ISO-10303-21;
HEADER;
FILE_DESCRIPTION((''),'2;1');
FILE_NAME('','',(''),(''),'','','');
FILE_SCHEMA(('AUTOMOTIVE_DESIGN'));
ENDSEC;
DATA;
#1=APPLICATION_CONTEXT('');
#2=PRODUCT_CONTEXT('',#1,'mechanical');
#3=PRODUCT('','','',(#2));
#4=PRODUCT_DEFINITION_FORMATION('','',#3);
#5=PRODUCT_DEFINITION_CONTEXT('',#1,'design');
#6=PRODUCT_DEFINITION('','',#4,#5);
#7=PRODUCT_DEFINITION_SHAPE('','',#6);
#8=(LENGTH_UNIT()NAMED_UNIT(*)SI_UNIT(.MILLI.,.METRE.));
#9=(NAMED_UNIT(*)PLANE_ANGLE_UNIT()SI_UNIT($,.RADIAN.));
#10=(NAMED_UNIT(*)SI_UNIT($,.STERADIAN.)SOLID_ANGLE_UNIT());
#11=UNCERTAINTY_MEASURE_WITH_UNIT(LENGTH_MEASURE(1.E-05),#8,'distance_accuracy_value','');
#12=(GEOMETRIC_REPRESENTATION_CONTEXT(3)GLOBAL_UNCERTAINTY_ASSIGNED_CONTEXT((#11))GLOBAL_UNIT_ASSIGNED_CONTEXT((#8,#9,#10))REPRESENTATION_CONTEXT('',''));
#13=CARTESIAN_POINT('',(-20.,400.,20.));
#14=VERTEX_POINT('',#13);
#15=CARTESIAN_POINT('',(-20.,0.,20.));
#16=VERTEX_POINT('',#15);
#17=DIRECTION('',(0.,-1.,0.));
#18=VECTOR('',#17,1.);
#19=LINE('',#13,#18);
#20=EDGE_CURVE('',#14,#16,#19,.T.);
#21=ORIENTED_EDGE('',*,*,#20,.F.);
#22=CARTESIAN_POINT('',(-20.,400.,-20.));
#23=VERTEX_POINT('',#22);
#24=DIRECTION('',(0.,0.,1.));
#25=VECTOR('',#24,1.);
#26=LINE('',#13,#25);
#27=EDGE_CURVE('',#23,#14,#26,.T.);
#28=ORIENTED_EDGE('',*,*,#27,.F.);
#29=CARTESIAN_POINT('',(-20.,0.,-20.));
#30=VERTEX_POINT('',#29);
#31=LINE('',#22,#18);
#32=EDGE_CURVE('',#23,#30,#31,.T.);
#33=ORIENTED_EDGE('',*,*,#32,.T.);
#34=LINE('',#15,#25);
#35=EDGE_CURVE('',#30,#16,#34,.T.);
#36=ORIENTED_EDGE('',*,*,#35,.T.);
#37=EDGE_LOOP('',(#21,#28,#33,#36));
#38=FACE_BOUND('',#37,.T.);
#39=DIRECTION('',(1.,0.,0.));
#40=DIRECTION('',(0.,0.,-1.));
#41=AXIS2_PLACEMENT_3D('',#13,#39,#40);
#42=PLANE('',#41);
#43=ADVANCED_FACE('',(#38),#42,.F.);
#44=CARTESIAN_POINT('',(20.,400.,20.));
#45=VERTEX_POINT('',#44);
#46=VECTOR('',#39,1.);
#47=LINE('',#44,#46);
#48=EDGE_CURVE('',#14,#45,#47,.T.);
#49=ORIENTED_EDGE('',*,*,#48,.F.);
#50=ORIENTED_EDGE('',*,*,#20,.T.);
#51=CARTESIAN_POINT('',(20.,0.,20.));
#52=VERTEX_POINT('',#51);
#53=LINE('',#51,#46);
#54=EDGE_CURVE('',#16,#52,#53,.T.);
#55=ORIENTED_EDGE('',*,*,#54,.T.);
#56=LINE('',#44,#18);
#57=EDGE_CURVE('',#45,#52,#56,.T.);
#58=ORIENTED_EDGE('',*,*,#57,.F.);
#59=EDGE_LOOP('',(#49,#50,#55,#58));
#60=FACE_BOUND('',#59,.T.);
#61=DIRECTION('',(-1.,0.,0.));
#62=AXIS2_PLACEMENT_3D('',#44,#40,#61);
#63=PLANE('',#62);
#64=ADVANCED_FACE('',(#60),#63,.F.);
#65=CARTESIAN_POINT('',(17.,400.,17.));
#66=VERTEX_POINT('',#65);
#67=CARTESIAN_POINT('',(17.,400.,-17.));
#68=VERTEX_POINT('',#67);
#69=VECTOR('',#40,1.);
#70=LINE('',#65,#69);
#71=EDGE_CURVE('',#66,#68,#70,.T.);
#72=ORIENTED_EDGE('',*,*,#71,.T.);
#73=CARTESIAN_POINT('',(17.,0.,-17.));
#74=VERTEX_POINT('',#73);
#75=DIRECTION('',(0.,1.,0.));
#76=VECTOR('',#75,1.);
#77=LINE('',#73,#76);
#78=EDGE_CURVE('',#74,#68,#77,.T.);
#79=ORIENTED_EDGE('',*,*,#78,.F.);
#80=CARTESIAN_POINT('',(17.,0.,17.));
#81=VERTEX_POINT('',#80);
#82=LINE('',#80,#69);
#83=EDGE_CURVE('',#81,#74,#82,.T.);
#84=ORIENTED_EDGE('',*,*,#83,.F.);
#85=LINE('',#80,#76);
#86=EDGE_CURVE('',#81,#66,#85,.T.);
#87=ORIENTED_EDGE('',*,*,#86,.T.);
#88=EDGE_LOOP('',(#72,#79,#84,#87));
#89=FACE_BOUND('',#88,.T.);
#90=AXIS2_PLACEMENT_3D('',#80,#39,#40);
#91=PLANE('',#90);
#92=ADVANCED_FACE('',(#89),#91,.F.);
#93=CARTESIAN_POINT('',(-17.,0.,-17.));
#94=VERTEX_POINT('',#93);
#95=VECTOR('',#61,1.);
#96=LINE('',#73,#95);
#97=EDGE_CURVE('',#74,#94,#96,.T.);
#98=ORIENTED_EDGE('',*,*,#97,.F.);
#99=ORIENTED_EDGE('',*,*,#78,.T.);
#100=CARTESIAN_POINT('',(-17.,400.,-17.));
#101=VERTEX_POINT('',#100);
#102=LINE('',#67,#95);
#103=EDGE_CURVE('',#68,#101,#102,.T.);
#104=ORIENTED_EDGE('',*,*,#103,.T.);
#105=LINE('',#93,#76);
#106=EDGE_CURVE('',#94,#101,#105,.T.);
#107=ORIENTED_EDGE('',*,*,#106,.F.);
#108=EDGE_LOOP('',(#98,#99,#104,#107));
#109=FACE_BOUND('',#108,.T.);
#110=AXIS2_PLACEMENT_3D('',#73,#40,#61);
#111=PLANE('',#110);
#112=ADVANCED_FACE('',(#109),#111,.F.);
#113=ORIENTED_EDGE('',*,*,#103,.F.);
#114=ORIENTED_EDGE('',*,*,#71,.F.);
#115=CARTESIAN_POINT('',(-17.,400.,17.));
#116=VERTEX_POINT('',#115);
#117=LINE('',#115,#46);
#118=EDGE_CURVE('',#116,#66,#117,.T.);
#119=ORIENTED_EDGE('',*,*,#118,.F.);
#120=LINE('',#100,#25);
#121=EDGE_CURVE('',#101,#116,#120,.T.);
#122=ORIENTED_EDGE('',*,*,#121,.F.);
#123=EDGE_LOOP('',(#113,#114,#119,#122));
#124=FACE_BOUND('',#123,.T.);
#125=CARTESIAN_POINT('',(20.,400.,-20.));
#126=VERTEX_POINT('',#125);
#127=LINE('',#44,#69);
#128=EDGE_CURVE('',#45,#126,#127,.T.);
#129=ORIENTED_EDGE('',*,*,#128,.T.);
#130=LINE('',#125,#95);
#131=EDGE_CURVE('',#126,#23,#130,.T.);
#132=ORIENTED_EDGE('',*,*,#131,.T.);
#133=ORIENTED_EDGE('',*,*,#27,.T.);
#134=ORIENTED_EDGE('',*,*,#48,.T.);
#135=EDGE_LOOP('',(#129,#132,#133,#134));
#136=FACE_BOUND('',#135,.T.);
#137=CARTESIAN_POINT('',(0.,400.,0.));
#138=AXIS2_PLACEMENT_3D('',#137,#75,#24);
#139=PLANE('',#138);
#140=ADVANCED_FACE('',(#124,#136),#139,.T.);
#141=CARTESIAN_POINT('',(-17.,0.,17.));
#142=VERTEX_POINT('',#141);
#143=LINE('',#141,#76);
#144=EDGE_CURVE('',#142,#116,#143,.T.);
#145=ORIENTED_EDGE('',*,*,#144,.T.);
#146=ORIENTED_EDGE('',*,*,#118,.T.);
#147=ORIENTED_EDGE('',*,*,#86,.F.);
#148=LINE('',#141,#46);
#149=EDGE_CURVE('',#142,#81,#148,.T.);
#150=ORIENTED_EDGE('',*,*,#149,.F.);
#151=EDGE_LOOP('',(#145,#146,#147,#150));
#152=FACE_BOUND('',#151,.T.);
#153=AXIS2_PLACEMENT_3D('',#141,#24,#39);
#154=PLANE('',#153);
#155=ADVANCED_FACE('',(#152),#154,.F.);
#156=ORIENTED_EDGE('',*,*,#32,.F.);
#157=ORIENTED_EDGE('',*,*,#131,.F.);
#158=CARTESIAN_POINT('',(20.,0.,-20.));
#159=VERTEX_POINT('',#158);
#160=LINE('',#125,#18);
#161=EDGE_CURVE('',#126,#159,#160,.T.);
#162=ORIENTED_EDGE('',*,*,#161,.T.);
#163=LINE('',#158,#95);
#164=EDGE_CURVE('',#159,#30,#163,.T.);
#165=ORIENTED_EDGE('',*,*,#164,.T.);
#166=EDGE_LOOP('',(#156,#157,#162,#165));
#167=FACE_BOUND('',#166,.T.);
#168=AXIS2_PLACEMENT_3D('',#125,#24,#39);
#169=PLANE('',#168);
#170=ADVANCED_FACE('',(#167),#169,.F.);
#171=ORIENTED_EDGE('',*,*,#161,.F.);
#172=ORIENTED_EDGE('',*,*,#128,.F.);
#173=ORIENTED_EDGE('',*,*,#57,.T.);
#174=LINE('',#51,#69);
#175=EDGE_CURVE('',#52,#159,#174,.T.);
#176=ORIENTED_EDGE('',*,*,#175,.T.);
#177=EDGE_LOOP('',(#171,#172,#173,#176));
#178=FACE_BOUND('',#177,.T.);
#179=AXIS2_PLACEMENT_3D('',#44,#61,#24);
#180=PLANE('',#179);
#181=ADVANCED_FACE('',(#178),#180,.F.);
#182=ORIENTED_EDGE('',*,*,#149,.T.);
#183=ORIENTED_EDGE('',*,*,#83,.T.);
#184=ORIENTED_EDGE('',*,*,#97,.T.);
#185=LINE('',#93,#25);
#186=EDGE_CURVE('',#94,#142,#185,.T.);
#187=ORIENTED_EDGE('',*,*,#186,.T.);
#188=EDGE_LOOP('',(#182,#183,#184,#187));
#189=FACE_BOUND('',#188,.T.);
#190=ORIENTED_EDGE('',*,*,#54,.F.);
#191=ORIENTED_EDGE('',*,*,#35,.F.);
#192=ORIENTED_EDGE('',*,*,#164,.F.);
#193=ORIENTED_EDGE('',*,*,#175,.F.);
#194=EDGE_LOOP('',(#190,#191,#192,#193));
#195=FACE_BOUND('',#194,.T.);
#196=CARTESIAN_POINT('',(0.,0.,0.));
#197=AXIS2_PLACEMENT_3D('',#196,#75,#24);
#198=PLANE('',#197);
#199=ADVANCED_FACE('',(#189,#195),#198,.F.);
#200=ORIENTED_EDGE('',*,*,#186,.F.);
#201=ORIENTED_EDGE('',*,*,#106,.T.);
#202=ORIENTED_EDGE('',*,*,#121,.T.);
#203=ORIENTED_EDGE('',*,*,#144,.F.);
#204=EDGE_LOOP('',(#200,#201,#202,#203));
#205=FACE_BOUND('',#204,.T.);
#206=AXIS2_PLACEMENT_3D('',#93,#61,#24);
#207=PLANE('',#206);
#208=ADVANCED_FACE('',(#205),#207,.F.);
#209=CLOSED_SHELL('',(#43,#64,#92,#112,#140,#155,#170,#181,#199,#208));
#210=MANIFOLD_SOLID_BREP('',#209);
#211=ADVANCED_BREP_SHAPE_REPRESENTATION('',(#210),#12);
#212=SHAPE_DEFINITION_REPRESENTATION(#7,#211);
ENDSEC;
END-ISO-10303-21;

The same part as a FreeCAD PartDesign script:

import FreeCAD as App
import Part
import Sketcher
Q = App.Units.Quantity


def add_polygon(sketch, points):
    """Adds a closed chain of lines whose ends are joined by coincident constraints."""
    first, n = sketch.GeometryCount, len(points)
    for a, b in zip(points, points[1:] + points[:1]):
        sketch.addGeometry(Part.LineSegment(App.Vector(*a, 0), App.Vector(*b, 0)), False)
    for i in range(n):
        sketch.addConstraint(Sketcher.Constraint("Coincident", first + i, 2, first + (i + 1) % n, 1))

doc = App.newDocument("Part")
params = doc.addObject("Spreadsheet::Sheet", "Params")
for row, (alias, value) in enumerate([
    ("sketch1_width", "40 mm"),
    ("pad1_length", "400 mm"),
    ("sketch2_width", "34 mm"),
], start=1):
    params.set(f"A{row}", alias)
    params.set(f"B{row}", "=" + value)
    params.setAlias(f"B{row}", alias)

body = doc.addObject("PartDesign::Body", "Body")

sketch1 = body.newObject("Sketcher::SketchObject", "Sketch")
sketch1.AttachmentSupport = (doc.getObject("XZ_Plane"), [""])
sketch1.MapMode = "FlatFace"
add_polygon(sketch1, [(-20, -20), (-20, 20), (20, 20), (20, -20)])
sketch1.addConstraint(Sketcher.Constraint("Vertical", 0))
sketch1.addConstraint(Sketcher.Constraint("Horizontal", 1))
sketch1.addConstraint(Sketcher.Constraint("Vertical", 2))
sketch1.addConstraint(Sketcher.Constraint("Horizontal", 3))
sketch1.addConstraint(Sketcher.Constraint("Symmetric", 0, 2, 2, 2, -1, 1))
sketch1.addConstraint(Sketcher.Constraint("Equal", 3, 0))
sketch1.addConstraint(Sketcher.Constraint("DistanceX", 1, 1, 1, 2, Q("40 mm")))
sketch1.setExpression("Constraints[10]", "Params.sketch1_width")
pad1 = body.newObject("PartDesign::Pad", "Pad")
pad1.Profile = sketch1
pad1.setExpression("Length", "Params.pad1_length")
pad1.Reversed = True

sketch2 = body.newObject("Sketcher::SketchObject", "Sketch001")
sketch2.AttachmentSupport = (doc.getObject("XZ_Plane"), [""])
sketch2.MapMode = "FlatFace"
sketch2.AttachmentOffset = App.Placement(App.Vector(0, 0, -400), App.Rotation())
add_polygon(sketch2, [(-17, -17), (-17, 17), (17, 17), (17, -17)])
sketch2.addConstraint(Sketcher.Constraint("Vertical", 0))
sketch2.addConstraint(Sketcher.Constraint("Horizontal", 1))
sketch2.addConstraint(Sketcher.Constraint("Vertical", 2))
sketch2.addConstraint(Sketcher.Constraint("Horizontal", 3))
sketch2.addConstraint(Sketcher.Constraint("Symmetric", 0, 2, 2, 2, -1, 1))
sketch2.addConstraint(Sketcher.Constraint("Equal", 3, 0))
sketch2.addConstraint(Sketcher.Constraint("DistanceX", 1, 1, 1, 2, Q("34 mm")))
sketch2.setExpression("Constraints[10]", "Params.sketch2_width")
pocket1 = body.newObject("PartDesign::Pocket", "Pocket")
pocket1.Profile = sketch2
pocket1.Type = "ThroughAll"
pocket1.Reversed = True

doc.recompute()
